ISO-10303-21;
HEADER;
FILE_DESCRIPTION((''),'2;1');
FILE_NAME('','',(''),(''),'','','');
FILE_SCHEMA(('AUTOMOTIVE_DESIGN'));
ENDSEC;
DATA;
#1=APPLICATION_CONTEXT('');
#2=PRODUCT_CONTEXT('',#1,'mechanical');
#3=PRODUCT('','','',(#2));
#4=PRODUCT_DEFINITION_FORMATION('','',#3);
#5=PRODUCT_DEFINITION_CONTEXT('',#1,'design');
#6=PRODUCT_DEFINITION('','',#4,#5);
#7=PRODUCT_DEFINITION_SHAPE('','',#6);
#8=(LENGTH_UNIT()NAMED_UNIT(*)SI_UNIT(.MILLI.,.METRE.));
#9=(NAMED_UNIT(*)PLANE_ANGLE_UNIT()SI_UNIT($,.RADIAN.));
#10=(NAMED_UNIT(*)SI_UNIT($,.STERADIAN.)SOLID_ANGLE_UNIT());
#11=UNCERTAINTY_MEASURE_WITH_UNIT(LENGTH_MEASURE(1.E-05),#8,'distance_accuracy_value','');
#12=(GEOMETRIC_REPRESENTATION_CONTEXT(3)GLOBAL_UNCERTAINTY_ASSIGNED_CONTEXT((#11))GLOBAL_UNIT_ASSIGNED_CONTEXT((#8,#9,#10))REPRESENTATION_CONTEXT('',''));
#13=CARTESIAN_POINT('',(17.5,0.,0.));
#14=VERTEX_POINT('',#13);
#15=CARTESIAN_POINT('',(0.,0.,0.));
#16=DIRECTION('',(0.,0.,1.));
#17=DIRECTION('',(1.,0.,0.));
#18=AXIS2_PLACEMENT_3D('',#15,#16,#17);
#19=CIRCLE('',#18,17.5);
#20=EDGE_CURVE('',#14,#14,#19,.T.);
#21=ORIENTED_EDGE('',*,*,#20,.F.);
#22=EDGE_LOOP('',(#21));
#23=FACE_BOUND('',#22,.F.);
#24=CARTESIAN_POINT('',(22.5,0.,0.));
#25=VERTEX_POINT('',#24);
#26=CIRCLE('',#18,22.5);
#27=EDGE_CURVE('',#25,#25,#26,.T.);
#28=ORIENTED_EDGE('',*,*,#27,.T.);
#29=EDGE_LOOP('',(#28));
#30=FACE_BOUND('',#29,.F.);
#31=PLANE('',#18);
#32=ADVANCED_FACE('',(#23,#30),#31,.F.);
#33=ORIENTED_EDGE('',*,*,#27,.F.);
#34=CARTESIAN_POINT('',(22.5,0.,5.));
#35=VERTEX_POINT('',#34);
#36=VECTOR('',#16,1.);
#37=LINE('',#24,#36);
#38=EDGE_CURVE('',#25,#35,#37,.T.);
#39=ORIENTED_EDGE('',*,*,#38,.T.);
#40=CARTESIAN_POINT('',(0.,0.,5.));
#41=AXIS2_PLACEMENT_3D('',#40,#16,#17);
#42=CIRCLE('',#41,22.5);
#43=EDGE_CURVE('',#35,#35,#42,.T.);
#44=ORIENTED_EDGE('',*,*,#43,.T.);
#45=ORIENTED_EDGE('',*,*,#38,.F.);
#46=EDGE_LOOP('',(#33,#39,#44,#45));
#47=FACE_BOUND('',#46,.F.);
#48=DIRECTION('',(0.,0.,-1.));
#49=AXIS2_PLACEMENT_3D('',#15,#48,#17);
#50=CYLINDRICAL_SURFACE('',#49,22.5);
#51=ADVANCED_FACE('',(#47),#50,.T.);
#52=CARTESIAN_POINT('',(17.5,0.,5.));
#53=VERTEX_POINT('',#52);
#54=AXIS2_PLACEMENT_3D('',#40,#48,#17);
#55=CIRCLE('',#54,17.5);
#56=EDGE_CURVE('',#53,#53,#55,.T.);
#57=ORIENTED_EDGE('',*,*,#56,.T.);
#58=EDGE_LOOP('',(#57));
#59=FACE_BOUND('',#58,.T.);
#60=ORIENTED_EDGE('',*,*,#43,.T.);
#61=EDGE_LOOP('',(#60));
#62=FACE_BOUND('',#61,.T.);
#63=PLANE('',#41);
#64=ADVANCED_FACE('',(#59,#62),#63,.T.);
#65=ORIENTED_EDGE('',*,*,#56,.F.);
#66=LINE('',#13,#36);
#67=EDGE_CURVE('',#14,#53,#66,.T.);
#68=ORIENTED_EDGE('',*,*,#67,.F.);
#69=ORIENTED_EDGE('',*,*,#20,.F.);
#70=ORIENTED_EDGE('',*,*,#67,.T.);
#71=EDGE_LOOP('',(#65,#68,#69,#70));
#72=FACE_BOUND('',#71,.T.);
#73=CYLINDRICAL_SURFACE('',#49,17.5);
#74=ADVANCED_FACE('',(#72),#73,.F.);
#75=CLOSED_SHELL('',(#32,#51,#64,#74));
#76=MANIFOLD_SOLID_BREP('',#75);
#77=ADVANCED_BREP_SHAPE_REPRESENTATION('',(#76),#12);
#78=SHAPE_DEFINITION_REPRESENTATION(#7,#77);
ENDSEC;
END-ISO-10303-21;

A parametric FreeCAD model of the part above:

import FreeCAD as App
import Part
import Sketcher

V = App.Vector

doc = App.newDocument("Part")
body = doc.addObject("PartDesign::Body", "Body")

sketch1 = doc.addObject("Sketcher::SketchObject", "Sketch")
body.addObject(sketch1)
sketch1.AttachmentSupport = (doc.XY_Plane, [""])
sketch1.MapMode = "FlatFace"
sketch1.addGeometry(Part.Circle(V(0, 0, 0), V(0, 0, 1), 17.5), False)
sketch1.addConstraint(Sketcher.Constraint("Coincident", 0, 3, -1, 1))
sketch1.addConstraint(Sketcher.Constraint("Diameter", 0, 35.0))
pad1 = doc.addObject("PartDesign::Pad", "Pad")
body.addObject(pad1)
pad1.Profile = sketch1
pad1.Length = 10
body2 = doc.addObject("PartDesign::Body", "Body001")

sketch2 = doc.addObject("Sketcher::SketchObject", "Sketch001")
body2.addObject(sketch2)
sketch2.AttachmentSupport = (doc.getObject("XY_Plane001"), [""])
sketch2.MapMode = "FlatFace"
sketch2.addGeometry(Part.Circle(V(0, 0, 0), V(0, 0, 1), 22.5), False)
sketch2.addConstraint(Sketcher.Constraint("Coincident", 0, 3, -1, 1))
sketch2.addConstraint(Sketcher.Constraint("Diameter", 0, 45.0))
pad2 = doc.addObject("PartDesign::Pad", "Pad001")
body2.addObject(pad2)
pad2.Profile = sketch2
pad2.Length = 5
doc.recompute()

boolean = doc.addObject("PartDesign::Boolean", "Boolean")
body2.addObject(boolean)
boolean.Type = "Cut"
boolean.addObjects([body])

doc.recompute()
